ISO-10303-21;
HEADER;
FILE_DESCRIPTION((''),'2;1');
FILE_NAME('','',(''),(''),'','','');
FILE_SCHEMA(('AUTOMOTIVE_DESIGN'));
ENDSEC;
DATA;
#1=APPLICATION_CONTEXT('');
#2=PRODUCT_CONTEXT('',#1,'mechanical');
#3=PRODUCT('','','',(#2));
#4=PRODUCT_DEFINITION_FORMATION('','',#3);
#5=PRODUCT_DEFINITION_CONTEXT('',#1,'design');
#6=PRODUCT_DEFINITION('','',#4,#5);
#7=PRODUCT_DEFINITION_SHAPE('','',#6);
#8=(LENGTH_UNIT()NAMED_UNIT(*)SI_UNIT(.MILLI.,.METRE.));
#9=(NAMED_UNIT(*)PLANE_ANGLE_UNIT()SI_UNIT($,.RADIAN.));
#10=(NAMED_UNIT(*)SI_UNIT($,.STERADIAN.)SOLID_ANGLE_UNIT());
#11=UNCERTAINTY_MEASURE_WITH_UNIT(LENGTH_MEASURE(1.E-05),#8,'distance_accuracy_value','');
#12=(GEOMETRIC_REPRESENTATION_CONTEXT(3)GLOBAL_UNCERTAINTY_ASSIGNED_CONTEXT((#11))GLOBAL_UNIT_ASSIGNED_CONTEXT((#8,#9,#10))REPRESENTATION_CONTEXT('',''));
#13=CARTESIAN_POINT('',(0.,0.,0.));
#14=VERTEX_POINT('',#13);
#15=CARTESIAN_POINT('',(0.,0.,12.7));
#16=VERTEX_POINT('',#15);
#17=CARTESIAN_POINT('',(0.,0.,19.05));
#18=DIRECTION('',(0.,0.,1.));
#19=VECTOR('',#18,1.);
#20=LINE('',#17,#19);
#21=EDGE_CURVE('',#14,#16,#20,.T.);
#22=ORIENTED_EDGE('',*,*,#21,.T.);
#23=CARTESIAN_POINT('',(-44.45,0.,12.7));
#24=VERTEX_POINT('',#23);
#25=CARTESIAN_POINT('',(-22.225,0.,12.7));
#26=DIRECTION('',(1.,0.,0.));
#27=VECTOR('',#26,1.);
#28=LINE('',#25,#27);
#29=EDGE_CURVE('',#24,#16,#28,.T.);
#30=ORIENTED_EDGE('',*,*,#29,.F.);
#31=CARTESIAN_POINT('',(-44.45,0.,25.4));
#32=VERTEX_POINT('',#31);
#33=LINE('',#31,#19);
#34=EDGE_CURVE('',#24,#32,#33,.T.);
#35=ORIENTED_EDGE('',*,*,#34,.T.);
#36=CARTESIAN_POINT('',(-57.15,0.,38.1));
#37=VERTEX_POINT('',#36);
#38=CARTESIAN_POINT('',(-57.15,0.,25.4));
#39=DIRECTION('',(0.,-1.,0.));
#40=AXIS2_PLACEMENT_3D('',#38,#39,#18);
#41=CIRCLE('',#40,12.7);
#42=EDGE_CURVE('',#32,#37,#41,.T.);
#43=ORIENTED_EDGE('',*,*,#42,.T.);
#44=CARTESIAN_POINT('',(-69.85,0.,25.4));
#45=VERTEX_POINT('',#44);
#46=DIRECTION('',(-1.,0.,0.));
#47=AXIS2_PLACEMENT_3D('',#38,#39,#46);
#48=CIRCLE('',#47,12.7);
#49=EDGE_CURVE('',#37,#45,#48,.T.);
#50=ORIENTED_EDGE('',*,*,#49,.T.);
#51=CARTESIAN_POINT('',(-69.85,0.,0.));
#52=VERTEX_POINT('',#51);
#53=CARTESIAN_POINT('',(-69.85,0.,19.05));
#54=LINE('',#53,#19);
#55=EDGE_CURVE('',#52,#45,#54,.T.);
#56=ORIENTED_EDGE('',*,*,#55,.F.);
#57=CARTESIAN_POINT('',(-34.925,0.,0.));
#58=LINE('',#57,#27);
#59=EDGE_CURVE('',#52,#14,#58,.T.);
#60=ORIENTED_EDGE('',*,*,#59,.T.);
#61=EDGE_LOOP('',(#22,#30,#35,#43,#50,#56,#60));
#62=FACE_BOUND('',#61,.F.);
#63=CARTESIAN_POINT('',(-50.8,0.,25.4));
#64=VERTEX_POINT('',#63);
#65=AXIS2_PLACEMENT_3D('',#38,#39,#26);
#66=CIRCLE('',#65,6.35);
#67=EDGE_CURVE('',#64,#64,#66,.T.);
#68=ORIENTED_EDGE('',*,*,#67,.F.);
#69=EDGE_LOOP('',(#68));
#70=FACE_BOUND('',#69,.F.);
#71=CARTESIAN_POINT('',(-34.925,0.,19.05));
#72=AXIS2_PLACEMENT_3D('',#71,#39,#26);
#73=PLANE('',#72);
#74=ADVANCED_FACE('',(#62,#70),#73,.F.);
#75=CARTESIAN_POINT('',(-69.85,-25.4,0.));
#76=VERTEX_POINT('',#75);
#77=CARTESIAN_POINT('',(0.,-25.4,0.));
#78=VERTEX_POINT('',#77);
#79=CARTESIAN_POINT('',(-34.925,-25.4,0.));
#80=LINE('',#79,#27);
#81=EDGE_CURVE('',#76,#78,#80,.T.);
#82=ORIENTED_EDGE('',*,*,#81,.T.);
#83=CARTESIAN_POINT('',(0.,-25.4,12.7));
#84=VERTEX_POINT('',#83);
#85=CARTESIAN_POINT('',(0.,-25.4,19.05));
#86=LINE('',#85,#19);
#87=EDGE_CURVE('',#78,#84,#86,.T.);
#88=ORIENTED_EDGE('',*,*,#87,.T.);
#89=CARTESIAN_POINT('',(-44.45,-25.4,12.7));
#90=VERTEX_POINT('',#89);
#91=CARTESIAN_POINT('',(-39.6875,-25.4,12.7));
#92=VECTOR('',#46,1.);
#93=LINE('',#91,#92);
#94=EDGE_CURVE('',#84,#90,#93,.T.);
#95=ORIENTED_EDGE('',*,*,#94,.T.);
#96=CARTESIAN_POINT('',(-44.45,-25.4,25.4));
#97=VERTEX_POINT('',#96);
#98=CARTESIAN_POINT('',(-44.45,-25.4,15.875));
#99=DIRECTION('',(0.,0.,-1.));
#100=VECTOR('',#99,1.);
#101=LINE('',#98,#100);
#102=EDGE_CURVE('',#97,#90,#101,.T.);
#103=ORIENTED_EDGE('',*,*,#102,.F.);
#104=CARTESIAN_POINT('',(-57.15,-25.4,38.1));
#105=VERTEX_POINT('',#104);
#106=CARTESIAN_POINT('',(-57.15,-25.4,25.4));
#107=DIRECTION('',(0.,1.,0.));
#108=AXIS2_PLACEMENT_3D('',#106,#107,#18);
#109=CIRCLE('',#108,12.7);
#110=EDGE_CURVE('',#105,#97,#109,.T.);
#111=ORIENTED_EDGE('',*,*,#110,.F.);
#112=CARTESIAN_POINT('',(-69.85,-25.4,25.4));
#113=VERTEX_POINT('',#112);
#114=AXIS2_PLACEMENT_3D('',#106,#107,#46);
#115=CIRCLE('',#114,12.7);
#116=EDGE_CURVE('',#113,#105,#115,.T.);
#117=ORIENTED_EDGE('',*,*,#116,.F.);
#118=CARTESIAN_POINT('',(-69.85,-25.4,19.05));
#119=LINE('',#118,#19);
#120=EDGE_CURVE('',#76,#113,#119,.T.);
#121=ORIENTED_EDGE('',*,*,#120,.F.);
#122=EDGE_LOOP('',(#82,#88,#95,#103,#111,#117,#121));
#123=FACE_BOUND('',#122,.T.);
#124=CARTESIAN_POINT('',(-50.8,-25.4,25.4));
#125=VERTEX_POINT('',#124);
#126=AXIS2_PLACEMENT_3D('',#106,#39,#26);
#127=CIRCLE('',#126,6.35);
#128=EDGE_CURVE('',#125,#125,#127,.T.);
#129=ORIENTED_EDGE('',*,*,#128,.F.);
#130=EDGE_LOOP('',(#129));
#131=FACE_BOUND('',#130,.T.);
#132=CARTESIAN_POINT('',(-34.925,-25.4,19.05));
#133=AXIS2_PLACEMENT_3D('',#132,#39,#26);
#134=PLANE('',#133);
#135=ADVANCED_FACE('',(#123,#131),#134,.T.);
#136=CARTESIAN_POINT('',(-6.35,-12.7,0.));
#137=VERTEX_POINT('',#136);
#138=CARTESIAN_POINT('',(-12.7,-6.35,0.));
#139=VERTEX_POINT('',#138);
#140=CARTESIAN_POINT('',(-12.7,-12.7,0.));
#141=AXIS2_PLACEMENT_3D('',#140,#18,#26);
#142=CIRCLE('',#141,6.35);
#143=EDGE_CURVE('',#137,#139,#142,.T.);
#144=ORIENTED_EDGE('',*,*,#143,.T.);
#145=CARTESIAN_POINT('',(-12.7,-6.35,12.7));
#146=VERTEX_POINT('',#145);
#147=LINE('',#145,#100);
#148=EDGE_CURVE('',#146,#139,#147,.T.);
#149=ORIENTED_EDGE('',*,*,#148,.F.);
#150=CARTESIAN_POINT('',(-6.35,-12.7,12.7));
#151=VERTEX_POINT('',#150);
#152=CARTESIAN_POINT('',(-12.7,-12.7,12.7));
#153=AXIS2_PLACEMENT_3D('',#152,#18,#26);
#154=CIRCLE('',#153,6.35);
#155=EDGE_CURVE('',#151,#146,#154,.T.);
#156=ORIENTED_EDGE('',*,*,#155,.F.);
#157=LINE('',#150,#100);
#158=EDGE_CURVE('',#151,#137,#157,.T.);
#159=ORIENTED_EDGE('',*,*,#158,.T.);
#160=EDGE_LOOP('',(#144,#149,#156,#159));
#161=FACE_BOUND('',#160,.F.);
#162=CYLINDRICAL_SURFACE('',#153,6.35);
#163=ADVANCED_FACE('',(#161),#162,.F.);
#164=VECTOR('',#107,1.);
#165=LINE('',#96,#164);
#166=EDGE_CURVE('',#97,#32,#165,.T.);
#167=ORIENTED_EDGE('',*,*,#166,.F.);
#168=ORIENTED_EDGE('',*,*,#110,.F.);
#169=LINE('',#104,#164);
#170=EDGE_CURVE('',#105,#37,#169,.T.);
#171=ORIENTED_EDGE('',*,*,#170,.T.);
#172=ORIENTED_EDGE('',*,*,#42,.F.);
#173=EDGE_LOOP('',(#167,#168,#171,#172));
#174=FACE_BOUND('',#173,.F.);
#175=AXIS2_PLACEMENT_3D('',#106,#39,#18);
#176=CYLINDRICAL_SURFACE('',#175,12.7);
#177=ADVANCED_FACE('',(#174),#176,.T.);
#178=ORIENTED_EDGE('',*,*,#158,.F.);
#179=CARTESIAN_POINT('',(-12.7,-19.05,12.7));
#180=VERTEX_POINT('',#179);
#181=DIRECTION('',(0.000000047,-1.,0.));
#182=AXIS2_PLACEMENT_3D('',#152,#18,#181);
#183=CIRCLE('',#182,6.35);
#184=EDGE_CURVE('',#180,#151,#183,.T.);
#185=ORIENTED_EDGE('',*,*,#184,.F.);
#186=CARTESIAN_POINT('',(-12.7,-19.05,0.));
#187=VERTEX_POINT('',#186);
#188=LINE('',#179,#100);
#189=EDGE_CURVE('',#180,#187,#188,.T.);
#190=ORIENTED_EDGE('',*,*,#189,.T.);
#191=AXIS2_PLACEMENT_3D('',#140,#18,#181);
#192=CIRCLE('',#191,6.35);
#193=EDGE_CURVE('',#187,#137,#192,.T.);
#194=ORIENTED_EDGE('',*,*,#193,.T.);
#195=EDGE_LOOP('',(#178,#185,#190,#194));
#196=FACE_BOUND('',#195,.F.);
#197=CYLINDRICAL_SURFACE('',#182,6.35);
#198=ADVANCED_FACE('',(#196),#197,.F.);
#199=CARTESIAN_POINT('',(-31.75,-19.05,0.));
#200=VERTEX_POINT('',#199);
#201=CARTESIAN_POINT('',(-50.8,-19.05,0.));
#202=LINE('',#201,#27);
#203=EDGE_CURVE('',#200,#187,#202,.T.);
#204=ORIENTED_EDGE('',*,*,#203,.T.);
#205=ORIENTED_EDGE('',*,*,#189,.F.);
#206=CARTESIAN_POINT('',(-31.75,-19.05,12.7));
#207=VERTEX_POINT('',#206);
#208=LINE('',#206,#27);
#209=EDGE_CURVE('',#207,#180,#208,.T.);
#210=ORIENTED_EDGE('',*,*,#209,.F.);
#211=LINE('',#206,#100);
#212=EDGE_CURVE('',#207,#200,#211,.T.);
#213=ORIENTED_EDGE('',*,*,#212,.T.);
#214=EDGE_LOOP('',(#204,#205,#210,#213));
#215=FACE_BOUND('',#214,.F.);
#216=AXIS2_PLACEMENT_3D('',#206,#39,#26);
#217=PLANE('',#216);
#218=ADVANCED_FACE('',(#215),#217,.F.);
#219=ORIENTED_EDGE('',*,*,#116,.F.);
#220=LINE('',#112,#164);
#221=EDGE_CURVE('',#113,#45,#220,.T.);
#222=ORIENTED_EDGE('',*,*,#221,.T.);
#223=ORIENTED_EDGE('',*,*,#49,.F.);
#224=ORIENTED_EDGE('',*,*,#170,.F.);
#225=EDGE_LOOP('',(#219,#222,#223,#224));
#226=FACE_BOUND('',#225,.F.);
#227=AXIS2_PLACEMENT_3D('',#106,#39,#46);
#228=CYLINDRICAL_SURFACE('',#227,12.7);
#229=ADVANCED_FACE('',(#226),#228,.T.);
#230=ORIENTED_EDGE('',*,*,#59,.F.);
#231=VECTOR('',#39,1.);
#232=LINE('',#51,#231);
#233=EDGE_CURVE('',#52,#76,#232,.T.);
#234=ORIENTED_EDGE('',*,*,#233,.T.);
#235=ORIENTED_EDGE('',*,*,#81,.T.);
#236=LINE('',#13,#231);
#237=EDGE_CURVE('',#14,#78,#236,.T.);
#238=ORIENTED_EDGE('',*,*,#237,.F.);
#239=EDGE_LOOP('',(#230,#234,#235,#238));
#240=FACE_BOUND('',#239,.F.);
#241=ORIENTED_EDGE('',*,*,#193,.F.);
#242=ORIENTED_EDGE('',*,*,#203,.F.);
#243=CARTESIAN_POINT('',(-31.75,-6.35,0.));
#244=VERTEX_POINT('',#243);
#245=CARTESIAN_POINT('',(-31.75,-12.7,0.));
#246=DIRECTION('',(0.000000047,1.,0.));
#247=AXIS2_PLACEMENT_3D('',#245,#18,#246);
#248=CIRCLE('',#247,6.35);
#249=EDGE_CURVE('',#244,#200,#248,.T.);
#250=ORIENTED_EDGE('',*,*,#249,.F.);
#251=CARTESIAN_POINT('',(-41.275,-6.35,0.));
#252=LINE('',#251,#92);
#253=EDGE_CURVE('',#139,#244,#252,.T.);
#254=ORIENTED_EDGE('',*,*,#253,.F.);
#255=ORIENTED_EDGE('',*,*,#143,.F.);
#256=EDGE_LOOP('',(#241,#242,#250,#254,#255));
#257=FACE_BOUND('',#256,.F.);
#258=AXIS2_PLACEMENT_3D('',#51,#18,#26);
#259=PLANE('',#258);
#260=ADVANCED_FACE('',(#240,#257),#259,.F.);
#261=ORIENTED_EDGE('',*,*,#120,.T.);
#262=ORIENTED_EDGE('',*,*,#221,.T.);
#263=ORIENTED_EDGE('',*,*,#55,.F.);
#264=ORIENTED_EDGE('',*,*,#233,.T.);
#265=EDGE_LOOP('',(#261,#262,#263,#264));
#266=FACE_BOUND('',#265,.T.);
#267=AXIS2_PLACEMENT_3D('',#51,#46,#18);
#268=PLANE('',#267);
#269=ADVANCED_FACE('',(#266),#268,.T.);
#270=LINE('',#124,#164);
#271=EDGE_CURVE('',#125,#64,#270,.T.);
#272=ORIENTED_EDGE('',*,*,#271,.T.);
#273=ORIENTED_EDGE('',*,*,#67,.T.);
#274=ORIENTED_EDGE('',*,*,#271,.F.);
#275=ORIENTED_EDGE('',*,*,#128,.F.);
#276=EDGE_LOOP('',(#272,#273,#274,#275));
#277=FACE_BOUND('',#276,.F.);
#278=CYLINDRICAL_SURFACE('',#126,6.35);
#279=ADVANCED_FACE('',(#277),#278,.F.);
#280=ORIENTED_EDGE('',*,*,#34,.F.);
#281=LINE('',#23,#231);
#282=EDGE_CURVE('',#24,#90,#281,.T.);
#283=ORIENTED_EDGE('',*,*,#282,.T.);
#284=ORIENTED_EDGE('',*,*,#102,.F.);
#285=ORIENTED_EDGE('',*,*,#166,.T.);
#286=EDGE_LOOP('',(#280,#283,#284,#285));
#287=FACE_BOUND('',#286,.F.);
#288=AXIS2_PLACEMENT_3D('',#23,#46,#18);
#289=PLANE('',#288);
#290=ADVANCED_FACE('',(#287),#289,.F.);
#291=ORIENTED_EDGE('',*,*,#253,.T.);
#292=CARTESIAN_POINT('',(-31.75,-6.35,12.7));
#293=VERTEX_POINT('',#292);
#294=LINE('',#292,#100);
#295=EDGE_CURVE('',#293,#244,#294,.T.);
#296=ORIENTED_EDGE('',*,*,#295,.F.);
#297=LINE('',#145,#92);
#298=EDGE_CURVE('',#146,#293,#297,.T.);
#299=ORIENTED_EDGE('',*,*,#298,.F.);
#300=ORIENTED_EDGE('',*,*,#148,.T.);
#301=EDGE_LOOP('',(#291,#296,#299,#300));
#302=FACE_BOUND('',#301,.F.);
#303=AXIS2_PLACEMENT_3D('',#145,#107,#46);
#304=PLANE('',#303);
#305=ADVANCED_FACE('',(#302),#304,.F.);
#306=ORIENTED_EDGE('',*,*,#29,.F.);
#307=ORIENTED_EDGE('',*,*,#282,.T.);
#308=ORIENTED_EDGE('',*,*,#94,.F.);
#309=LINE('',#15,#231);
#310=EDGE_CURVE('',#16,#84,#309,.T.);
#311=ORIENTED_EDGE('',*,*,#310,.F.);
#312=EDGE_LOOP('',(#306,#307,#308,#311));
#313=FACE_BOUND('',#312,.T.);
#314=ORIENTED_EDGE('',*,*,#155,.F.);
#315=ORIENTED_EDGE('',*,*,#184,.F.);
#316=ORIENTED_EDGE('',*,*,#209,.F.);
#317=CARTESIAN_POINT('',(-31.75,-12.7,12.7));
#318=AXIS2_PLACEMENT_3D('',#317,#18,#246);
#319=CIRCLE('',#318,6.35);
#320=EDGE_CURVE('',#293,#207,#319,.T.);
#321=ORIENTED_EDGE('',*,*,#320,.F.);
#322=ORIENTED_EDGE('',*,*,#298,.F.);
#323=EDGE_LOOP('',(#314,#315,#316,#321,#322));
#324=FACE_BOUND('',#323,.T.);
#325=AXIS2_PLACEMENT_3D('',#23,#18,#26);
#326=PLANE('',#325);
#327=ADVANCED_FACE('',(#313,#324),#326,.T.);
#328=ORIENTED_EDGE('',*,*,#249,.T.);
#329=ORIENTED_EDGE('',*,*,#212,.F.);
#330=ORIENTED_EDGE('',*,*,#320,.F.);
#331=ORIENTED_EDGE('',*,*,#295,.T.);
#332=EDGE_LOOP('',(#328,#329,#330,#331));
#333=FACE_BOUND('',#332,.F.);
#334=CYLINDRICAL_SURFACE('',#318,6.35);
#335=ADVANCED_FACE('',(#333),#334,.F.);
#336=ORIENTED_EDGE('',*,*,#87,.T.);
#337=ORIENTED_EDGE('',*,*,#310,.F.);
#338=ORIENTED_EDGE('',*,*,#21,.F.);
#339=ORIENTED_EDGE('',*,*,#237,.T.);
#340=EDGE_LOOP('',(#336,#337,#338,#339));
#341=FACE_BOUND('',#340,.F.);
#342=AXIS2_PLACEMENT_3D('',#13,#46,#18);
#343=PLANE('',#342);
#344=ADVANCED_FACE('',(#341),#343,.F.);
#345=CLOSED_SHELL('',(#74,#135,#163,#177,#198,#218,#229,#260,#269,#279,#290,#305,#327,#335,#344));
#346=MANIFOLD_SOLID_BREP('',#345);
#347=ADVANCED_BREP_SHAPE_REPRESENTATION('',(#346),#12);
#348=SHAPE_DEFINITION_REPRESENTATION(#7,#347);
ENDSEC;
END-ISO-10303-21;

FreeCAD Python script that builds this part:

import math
import FreeCAD as App
import Part
import Sketcher
from FreeCAD import Vector
Q = App.Units.Quantity

doc = App.newDocument("Part")
body = doc.addObject("PartDesign::Body", "Body")

sketch1 = doc.addObject("Sketcher::SketchObject", "Sketch")
body.addObject(sketch1)
sketch1.AttachmentSupport = (doc.XZ_Plane, [""])
sketch1.MapMode = "FlatFace"
sketch1.addGeometry([
    Part.LineSegment(Vector(-70, 38, 0), Vector(-70, 0, 0)),
    Part.LineSegment(Vector(-70, 0, 0), Vector(0, 0, 0)),
    Part.LineSegment(Vector(0, 0, 0), Vector(0, 38, 0)),
    Part.LineSegment(Vector(0, 38, 0), Vector(-70, 38, 0)),
], False)
sketch1.addConstraint([
    Sketcher.Constraint("Coincident", 0, 2, 1, 1),
    Sketcher.Constraint("Coincident", 1, 2, 2, 1),
    Sketcher.Constraint("Coincident", 2, 2, 3, 1),
    Sketcher.Constraint("Coincident", 3, 2, 0, 1),
    Sketcher.Constraint("Vertical", 0),
    Sketcher.Constraint("Horizontal", 1),
    Sketcher.Constraint("Vertical", 2),
    Sketcher.Constraint("Horizontal", 3),
    Sketcher.Constraint("Coincident", 1, 2, -1, 1),
    Sketcher.Constraint("DistanceY", 0, 2, 0, 1, Q("1.5 in")),
    Sketcher.Constraint("DistanceX", 1, 1, 1, 2, Q("2.75 in")),
])
pad1 = doc.addObject("PartDesign::Pad", "Pad")
body.addObject(pad1)
pad1.Profile = sketch1
pad1.Length = Q("1 in")

sketch2 = doc.addObject("Sketcher::SketchObject", "Sketch001")
body.addObject(sketch2)
sketch2.AttachmentSupport = (doc.XZ_Plane, [""])
sketch2.MapMode = "FlatFace"
sketch2.addGeometry([
    Part.LineSegment(Vector(-44, 38, 0), Vector(-44, 13, 0)),
    Part.LineSegment(Vector(-44, 13, 0), Vector(0, 13, 0)),
    Part.LineSegment(Vector(0, 13, 0), Vector(0, 38, 0)),
    Part.LineSegment(Vector(0, 38, 0), Vector(-44, 38, 0)),
], False)
sketch2.addConstraint([
    Sketcher.Constraint("Coincident", 0, 2, 1, 1),
    Sketcher.Constraint("Coincident", 1, 2, 2, 1),
    Sketcher.Constraint("Coincident", 2, 2, 3, 1),
    Sketcher.Constraint("Coincident", 3, 2, 0, 1),
    Sketcher.Constraint("Vertical", 0),
    Sketcher.Constraint("Horizontal", 1),
    Sketcher.Constraint("Vertical", 2),
    Sketcher.Constraint("Horizontal", 3),
    Sketcher.Constraint("PointOnObject", 1, 2, -2),
    Sketcher.Constraint("DistanceY", 0, 2, 0, 1, Q("1 in")),
    Sketcher.Constraint("DistanceX", 1, 1, 1, 2, Q("1.75 in")),
    Sketcher.Constraint("DistanceY", -1, 1, 0, 2, Q("0.5 in")),
])
pocket1 = doc.addObject("PartDesign::Pocket", "Pocket")
body.addObject(pocket1)
pocket1.Profile = sketch2
pocket1.Length = Q("1.25 in")
pocket1.Reversed = True

sketch3 = doc.addObject("Sketcher::SketchObject", "Sketch002")
body.addObject(sketch3)
sketch3.AttachmentSupport = (doc.XY_Plane, [""])
sketch3.MapMode = "FlatFace"
sketch3.AttachmentOffset = App.Placement(Vector(0, 0, 0.5 * 25.4), App.Rotation())
sketch3.addGeometry([
    Part.ArcOfCircle(Part.Circle(Vector(-13, -13, 0), Vector(0, 0, 1), 6), math.radians(-90), math.radians(0)),
    Part.ArcOfCircle(Part.Circle(Vector(-13, -13, 0), Vector(0, 0, 1), 6), math.radians(0), math.radians(90)),
    Part.LineSegment(Vector(-13, -6, 0), Vector(-32, -6, 0)),
    Part.ArcOfCircle(Part.Circle(Vector(-32, -13, 0), Vector(0, 0, 1), 6), math.radians(90), math.radians(270)),
    Part.LineSegment(Vector(-32, -19, 0), Vector(-13, -19, 0)),
], False)
sketch3.addConstraint([
    Sketcher.Constraint("Tangent", 0, 2, 1, 1),
    Sketcher.Constraint("Tangent", 1, 2, 2, 1),
    Sketcher.Constraint("Tangent", 2, 2, 3, 1),
    Sketcher.Constraint("Tangent", 3, 2, 4, 1),
    Sketcher.Constraint("Tangent", 4, 2, 0, 1),
    Sketcher.Constraint("Horizontal", 2),
    Sketcher.Constraint("Horizontal", 4),
    Sketcher.Constraint("Equal", 0, 1),
    Sketcher.Constraint("Horizontal", 3, 3, 0, 2),
    Sketcher.Constraint("Radius", 0, Q("0.25 in")),
    Sketcher.Constraint("DistanceX", 3, 3, 0, 2, Q("1 in")),
    Sketcher.Constraint("DistanceX", 0, 3, -1, 1, Q("0.5 in")),
    Sketcher.Constraint("DistanceY", 0, 3, -1, 1, Q("0.5 in")),
])
pocket2 = doc.addObject("PartDesign::Pocket", "Pocket001")
body.addObject(pocket2)
pocket2.Profile = sketch3
pocket2.Length = Q("1 in")

sketch4 = doc.addObject("Sketcher::SketchObject", "Sketch003")
body.addObject(sketch4)
sketch4.AttachmentSupport = (doc.XZ_Plane, [""])
sketch4.MapMode = "FlatFace"
sketch4.AttachmentOffset = App.Placement(Vector(0, 0, 1 * 25.4), App.Rotation())
sketch4.addGeometry([
    Part.Circle(Vector(-57, 25, 0), Vector(0, 0, 1), 6),
    Part.ArcOfCircle(Part.Circle(Vector(-57, 25, 0), Vector(0, 0, 1), 13), math.radians(0), math.radians(90)),
    Part.LineSegment(Vector(-44, 25, 0), Vector(-44, 38, 0)),
    Part.LineSegment(Vector(-44, 38, 0), Vector(-57, 38, 0)),
    Part.ArcOfCircle(Part.Circle(Vector(-57, 25, 0), Vector(0, 0, 1), 13), math.radians(90), math.radians(180)),
    Part.LineSegment(Vector(-57, 38, 0), Vector(-70, 38, 0)),
    Part.LineSegment(Vector(-70, 38, 0), Vector(-70, 25, 0)),
], False)
sketch4.addConstraint([
    Sketcher.Constraint("Tangent", 1, 1, 2, 1),
    Sketcher.Constraint("Coincident", 2, 2, 3, 1),
    Sketcher.Constraint("Tangent", 3, 2, 1, 2),
    Sketcher.Constraint("Tangent", 4, 1, 5, 1),
    Sketcher.Constraint("Coincident", 5, 2, 6, 1),
    Sketcher.Constraint("Tangent", 6, 2, 4, 2),
    Sketcher.Constraint("Vertical", 2),
    Sketcher.Constraint("Horizontal", 3),
    Sketcher.Constraint("Horizontal", 5),
    Sketcher.Constraint("Vertical", 6),
    Sketcher.Constraint("Coincident", 1, 3, 0, 3),
    Sketcher.Constraint("Coincident", 4, 3, 0, 3),
    Sketcher.Constraint("Equal", 1, 4),
    Sketcher.Constraint("Diameter", 0, Q("0.5 in")),
    Sketcher.Constraint("Radius", 1, Q("0.5 in")),
    Sketcher.Constraint("DistanceY", -1, 1, 0, 3, Q("1 in")),
    Sketcher.Constraint("DistanceX", 0, 3, -1, 1, Q("2.25 in")),
])
pocket3 = doc.addObject("PartDesign::Pocket", "Pocket002")
body.addObject(pocket3)
pocket3.Profile = sketch4
pocket3.Length = Q("1.25 in")

doc.recompute()
